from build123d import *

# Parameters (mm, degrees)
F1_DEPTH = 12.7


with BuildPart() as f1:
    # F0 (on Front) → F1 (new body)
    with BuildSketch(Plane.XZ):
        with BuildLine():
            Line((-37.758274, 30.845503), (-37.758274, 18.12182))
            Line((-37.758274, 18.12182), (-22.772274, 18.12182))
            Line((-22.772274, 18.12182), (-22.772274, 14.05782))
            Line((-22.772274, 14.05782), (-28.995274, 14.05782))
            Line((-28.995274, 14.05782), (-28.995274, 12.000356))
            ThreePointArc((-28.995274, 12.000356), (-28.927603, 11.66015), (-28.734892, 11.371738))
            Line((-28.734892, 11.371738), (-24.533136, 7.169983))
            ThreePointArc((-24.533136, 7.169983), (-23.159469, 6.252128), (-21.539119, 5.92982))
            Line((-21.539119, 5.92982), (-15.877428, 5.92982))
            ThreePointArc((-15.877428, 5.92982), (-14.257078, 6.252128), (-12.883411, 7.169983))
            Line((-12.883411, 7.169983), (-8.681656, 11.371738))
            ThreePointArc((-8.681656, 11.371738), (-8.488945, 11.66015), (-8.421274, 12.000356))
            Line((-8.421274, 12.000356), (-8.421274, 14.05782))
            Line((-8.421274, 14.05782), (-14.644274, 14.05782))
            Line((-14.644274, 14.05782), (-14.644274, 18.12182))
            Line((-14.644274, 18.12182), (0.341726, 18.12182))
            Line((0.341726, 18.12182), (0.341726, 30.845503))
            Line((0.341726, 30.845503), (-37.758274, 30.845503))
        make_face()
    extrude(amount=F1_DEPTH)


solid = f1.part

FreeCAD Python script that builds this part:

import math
import FreeCAD as App
import Part
import Sketcher

V = App.Vector
Q = App.Units.Quantity

doc = App.newDocument("Part")
params = doc.addObject("Spreadsheet::Sheet", "Params")
for row, (alias, value) in enumerate([
    ("sketch1_width", "1.5 in"),
    ("sketch1_radius", "0.0349999 in"),
    ("sketch1_width2", "0.59 in"),
    ("sketch1_height", "0.16 in"),
    ("sketch1_width3", "0.245 in"),
    ("pad1_length", "0.5 in"),
], start=1):
    params.set(f"A{row}", alias)
    params.set(f"B{row}", "=" + value)
    params.setAlias(f"B{row}", alias)

body = doc.addObject("PartDesign::Body", "Body")

# Sketch on XZ plane
sketch1 = doc.addObject("Sketcher::SketchObject", "Sketch")
body.addObject(sketch1)
sketch1.AttachmentSupport = (doc.XZ_Plane, [""])
sketch1.MapMode = "FlatFace"
sketch1.addGeometry([
    Part.LineSegment(V(-37.8, 30.8, 0), V(-37.8, 18.1, 0)),  # 0
    Part.LineSegment(V(-37.8, 18.1, 0), V(-22.8, 18.1, 0)),  # 1
    Part.LineSegment(V(-22.8, 18.1, 0), V(-22.8, 14.1, 0)),  # 2
    Part.LineSegment(V(-22.8, 14.1, 0), V(-29, 14.1, 0)),  # 3
    Part.LineSegment(V(-29, 14.1, 0), V(-29, 12, 0)),  # 4
    Part.ArcOfCircle(Part.Circle(V(-28.1, 12, 0), V(0, 0, 1), 0.9), math.radians(180), math.radians(225)),  # 5
    Part.LineSegment(V(-28.7, 11.4, 0), V(-24.5, 7.2, 0)),  # 6
    Part.ArcOfCircle(Part.Circle(V(-21.5, 10.2, 0), V(0, 0, 1), 4.2), math.radians(-135), math.radians(-90)),  # 7
    Part.LineSegment(V(-21.5, 5.9, 0), V(-15.9, 5.9, 0)),  # 8
    Part.ArcOfCircle(Part.Circle(V(-15.9, 10.2, 0), V(0, 0, 1), 4.2), math.radians(-90), math.radians(-45)),  # 9
    Part.LineSegment(V(-12.9, 7.2, 0), V(-8.7, 11.4, 0)),  # 10
    Part.ArcOfCircle(Part.Circle(V(-9.3, 12, 0), V(0, 0, 1), 0.9), math.radians(-45), math.radians(0)),  # 11
    Part.LineSegment(V(-8.4, 12, 0), V(-8.4, 14.1, 0)),  # 12
    Part.LineSegment(V(-8.4, 14.1, 0), V(-14.6, 14.1, 0)),  # 13
    Part.LineSegment(V(-14.6, 14.1, 0), V(-14.6, 18.1, 0)),  # 14
    Part.LineSegment(V(-14.6, 18.1, 0), V(0.3, 18.1, 0)),  # 15
    Part.LineSegment(V(0.3, 18.1, 0), V(0.3, 30.8, 0)),  # 16
    Part.LineSegment(V(0.3, 30.8, 0), V(-37.8, 30.8, 0)),  # 17
], False)
sketch1.addConstraint([
    Sketcher.Constraint("Coincident", 0, 2, 1, 1),
    Sketcher.Constraint("Coincident", 1, 2, 2, 1),
    Sketcher.Constraint("Coincident", 2, 2, 3, 1),
    Sketcher.Constraint("Coincident", 3, 2, 4, 1),
    Sketcher.Constraint("Tangent", 4, 2, 5, 1),
    Sketcher.Constraint("Tangent", 5, 2, 6, 1),
    Sketcher.Constraint("Tangent", 6, 2, 7, 1),
    Sketcher.Constraint("Tangent", 7, 2, 8, 1),
    Sketcher.Constraint("Tangent", 8, 2, 9, 1),
    Sketcher.Constraint("Tangent", 9, 2, 10, 1),
    Sketcher.Constraint("Tangent", 10, 2, 11, 1),
    Sketcher.Constraint("Tangent", 11, 2, 12, 1),
    Sketcher.Constraint("Coincident", 12, 2, 13, 1),
    Sketcher.Constraint("Coincident", 13, 2, 14, 1),
    Sketcher.Constraint("Coincident", 14, 2, 15, 1),
    Sketcher.Constraint("Coincident", 15, 2, 16, 1),
    Sketcher.Constraint("Coincident", 16, 2, 17, 1),
    Sketcher.Constraint("Coincident", 17, 2, 0, 1),
    Sketcher.Constraint("Vertical", 0),
    Sketcher.Constraint("Horizontal", 1),
    Sketcher.Constraint("Vertical", 2),
    Sketcher.Constraint("Horizontal", 3),
    Sketcher.Constraint("Vertical", 4),
    Sketcher.Constraint("Horizontal", 8),
    Sketcher.Constraint("Vertical", 12),
    Sketcher.Constraint("Horizontal", 13),
    Sketcher.Constraint("Vertical", 14),
    Sketcher.Constraint("Horizontal", 15),
    Sketcher.Constraint("Vertical", 16),
    Sketcher.Constraint("Horizontal", 17),
    Sketcher.Constraint("Equal", 7, 9),
    Sketcher.Constraint("Equal", 5, 11),
    Sketcher.Constraint("Perpendicular", 6, 10),
    Sketcher.Constraint("Horizontal", 5, 3, 11, 3),
    Sketcher.Constraint("Horizontal", 6, 2, 9, 2),
    Sketcher.Constraint("Horizontal", 3, 2, 12, 2),
    Sketcher.Constraint("Horizontal", 1, 2, 14, 2),
    Sketcher.Constraint("Equal", 3, 13),
    Sketcher.Constraint("Equal", 1, 15),
    Sketcher.Constraint("DistanceX", 17, 2, 17, 1, Q("1.5 in")),
    Sketcher.Constraint("Radius", 5, Q("0.0349999 in")),
    Sketcher.Constraint("DistanceX", 1, 1, 1, 2, Q("0.59 in")),
    Sketcher.Constraint("DistanceY", 2, 2, 2, 1, Q("0.16 in")),
    Sketcher.Constraint("Radius", 7, Q("0.1667001 in")),
    Sketcher.Constraint("DistanceX", 3, 2, 3, 1, Q("0.245 in")),
    Sketcher.Constraint("DistanceY", 7, 2, 2, 2, Q("0.32 in")),
    Sketcher.Constraint("DistanceX", 8, 1, 8, 2, Q("5.661691 mm")),
    Sketcher.Constraint("DistanceY", -1, 1, 7, 3, Q("10.164002 mm")),
    Sketcher.Constraint("DistanceY", 0, 2, 0, 1, Q("12.723683 mm")),
    Sketcher.Constraint("DistanceX", 9, 3, -1, 1, Q("15.877429 mm")),
])
sketch1.setExpression("Constraints[39]", "Params.sketch1_width")
sketch1.setExpression("Constraints[40]", "Params.sketch1_radius")
sketch1.setExpression("Constraints[41]", "Params.sketch1_width2")
sketch1.setExpression("Constraints[42]", "Params.sketch1_height")
sketch1.setExpression("Constraints[44]", "Params.sketch1_width3")
pad1 = doc.addObject("PartDesign::Pad", "Pad")
body.addObject(pad1)
pad1.Profile = sketch1
pad1.setExpression("Length", "Params.pad1_length")

doc.recompute()
